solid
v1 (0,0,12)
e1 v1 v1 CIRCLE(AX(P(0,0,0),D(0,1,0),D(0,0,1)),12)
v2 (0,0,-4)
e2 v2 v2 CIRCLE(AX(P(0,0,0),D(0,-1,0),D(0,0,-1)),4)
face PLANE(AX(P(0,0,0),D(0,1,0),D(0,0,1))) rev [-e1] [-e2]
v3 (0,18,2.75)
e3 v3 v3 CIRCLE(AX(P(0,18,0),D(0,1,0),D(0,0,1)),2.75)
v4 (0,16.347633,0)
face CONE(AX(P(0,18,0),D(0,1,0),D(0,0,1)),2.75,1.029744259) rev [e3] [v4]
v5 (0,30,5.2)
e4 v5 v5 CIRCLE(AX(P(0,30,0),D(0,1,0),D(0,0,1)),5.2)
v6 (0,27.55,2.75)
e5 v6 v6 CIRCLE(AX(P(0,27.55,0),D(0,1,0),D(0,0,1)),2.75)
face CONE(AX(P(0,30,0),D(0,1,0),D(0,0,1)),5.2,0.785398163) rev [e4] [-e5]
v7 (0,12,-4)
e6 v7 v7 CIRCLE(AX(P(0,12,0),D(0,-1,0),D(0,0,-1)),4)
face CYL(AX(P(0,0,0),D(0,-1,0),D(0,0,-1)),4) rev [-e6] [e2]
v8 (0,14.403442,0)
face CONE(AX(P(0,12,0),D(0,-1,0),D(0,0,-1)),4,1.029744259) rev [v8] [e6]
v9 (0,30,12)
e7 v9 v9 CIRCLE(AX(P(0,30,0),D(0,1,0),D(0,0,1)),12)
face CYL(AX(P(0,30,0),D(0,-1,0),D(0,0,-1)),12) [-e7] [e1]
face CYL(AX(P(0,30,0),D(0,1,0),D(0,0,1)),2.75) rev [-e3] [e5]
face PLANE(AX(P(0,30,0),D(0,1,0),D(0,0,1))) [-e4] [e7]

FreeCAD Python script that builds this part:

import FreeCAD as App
import Part
import Sketcher

doc = App.newDocument("Part")
body = doc.addObject("PartDesign::Body", "Body")

# Sketch on XZ plane
sketch1 = body.newObject("Sketcher::SketchObject", "Sketch")
sketch1.AttachmentSupport = (doc.getObject("XZ_Plane"), [""])
sketch1.MapMode = "FlatFace"
sketch1.addGeometry(Part.Circle(App.Vector(0, 0, 0), App.Vector(0, 0, 1), 12), False)
sketch1.addConstraint(Sketcher.Constraint("Coincident", 0, 3, -1, 1))
sketch1.addConstraint(Sketcher.Constraint("Diameter", 0, 24.0))
pad1 = body.newObject("PartDesign::Pad", "Pad")
pad1.Profile = sketch1
pad1.Length = 30
pad1.Reversed = True

# Sketch on XZ plane
sketch2 = body.newObject("Sketcher::SketchObject", "Sketch001")
sketch2.AttachmentSupport = (doc.getObject("XZ_Plane"), [""])
sketch2.MapMode = "FlatFace"
sketch2.AttachmentOffset = App.Placement(App.Vector(0, 0, -30), App.Rotation())
sketch2.addGeometry(Part.Circle(App.Vector(0, 0, 0), App.Vector(0, 0, 1), 2.8), False)
sketch2.addConstraint(Sketcher.Constraint("Coincident", 0, 3, -1, 1))
sketch2.addConstraint(Sketcher.Constraint("Diameter", 0, 5.5))
doc.recompute()
hole = body.newObject("PartDesign::Hole", "Hole")
hole.Profile = sketch2
hole.ThreadType = "None"
hole.Diameter = 5.5
hole.DepthType = "Dimension"
hole.Depth = 12
hole.DrillPoint = "Angled"
hole.DrillPointAngle = 118
hole.HoleCutType = "Countersink"
hole.HoleCutDiameter = 10.4
hole.HoleCutCountersinkAngle = 90
hole.Reversed = True

# Sketch on XZ plane
sketch3 = body.newObject("Sketcher::SketchObject", "Sketch002")
sketch3.AttachmentSupport = (doc.getObject("XZ_Plane"), [""])
sketch3.MapMode = "FlatFace"
sketch3.addGeometry(Part.Circle(App.Vector(0, 0, 0), App.Vector(0, 0, 1), 4), False)
sketch3.addConstraint(Sketcher.Constraint("Coincident", 0, 3, -1, 1))
sketch3.addConstraint(Sketcher.Constraint("Diameter", 0, 8.0))
doc.recompute()
hole2 = body.newObject("PartDesign::Hole", "Hole001")
hole2.Profile = sketch3
hole2.ThreadType = "None"
hole2.Diameter = 8
hole2.DepthType = "Dimension"
hole2.Depth = 12
hole2.DrillPoint = "Angled"
hole2.DrillPointAngle = 118

doc.recompute()
